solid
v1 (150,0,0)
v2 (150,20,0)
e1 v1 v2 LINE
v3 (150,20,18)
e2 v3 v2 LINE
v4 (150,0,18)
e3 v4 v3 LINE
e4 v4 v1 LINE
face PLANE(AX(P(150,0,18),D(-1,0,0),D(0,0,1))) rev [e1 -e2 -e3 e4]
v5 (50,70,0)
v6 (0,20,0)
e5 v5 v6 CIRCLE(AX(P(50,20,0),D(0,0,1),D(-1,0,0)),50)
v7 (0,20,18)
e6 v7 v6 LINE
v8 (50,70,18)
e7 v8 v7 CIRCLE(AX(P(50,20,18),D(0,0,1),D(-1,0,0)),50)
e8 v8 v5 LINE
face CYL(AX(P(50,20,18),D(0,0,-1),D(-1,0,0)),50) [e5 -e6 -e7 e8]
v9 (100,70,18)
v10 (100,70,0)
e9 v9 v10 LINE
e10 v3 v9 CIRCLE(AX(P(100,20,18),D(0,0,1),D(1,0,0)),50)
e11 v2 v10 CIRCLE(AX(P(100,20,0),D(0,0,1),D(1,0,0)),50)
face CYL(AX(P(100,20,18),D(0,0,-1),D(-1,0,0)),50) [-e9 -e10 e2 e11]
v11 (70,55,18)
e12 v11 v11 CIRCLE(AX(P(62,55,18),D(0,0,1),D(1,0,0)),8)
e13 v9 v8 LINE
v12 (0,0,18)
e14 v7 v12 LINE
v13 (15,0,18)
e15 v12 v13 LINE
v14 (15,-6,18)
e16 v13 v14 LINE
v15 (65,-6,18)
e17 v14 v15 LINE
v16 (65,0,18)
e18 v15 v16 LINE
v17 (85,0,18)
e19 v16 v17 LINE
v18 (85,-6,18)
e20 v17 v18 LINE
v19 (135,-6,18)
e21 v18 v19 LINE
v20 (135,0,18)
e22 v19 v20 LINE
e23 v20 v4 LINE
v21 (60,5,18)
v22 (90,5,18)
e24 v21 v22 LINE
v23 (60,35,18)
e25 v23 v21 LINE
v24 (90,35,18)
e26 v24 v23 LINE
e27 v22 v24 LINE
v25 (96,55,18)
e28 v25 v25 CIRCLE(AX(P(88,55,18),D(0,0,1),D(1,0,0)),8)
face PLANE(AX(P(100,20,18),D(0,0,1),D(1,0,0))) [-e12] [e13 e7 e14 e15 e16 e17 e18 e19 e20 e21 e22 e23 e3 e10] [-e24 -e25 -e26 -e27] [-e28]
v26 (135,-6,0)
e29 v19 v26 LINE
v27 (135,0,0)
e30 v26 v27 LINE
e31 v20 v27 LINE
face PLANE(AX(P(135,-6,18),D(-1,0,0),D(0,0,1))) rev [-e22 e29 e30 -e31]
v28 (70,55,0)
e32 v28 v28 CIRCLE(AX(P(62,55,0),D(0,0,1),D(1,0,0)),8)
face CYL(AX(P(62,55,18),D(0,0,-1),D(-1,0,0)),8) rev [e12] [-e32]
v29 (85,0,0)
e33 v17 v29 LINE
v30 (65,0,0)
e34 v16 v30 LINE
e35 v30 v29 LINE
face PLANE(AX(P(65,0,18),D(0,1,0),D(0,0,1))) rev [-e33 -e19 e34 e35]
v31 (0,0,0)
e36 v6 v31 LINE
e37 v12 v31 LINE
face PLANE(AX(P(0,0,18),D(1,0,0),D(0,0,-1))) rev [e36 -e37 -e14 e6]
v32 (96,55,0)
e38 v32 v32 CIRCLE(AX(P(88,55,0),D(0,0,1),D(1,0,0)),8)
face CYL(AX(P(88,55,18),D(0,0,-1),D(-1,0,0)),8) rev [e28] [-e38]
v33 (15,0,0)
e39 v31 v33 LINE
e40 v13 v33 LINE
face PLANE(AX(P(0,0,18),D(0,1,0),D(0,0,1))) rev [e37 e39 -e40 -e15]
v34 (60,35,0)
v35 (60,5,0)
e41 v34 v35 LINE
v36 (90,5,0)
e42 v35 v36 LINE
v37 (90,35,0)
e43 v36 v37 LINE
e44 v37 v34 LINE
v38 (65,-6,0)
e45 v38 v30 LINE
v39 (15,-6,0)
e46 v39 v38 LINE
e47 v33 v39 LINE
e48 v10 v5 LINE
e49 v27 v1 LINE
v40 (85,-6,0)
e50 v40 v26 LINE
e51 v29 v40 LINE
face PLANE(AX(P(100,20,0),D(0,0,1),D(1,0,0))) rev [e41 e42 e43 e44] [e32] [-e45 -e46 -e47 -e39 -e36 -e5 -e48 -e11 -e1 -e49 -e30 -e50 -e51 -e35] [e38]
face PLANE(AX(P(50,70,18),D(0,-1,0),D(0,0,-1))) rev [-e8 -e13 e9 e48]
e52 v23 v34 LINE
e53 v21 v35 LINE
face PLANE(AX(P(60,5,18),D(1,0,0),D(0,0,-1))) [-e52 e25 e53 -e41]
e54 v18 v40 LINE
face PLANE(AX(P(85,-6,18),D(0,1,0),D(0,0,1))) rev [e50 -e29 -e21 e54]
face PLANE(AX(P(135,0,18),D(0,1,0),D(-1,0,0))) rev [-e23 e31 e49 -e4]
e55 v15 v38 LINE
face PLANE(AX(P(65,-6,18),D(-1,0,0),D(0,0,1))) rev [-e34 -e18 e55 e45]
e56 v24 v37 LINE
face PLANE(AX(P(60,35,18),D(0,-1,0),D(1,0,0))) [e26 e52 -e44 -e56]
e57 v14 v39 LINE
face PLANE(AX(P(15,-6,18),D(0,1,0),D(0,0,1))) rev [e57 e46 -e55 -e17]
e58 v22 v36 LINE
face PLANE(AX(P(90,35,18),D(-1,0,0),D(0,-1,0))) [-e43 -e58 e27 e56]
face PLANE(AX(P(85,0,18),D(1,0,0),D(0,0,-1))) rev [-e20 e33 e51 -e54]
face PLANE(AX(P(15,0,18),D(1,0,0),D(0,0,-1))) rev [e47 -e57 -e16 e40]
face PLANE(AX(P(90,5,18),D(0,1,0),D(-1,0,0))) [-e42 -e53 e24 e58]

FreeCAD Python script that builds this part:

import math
import FreeCAD as App
import Part
import Sketcher

V = App.Vector


def add_polygon(sketch, points):
    """Adds a closed chain of lines whose ends are joined by coincident constraints."""
    first, n = sketch.GeometryCount, len(points)
    for a, b in zip(points, points[1:] + points[:1]):
        sketch.addGeometry(Part.LineSegment(App.Vector(*a, 0), App.Vector(*b, 0)), False)
    for i in range(n):
        sketch.addConstraint(Sketcher.Constraint("Coincident", first + i, 2, first + (i + 1) % n, 1))

doc = App.newDocument("Part")
body = doc.addObject("PartDesign::Body", "Body")

sketch1 = body.newObject("Sketcher::SketchObject", "Sketch")
sketch1.AttachmentSupport = (doc.getObject("XY_Plane"), [""])
sketch1.MapMode = "FlatFace"
sketch1.addGeometry(Part.LineSegment(V(0, 20, 0), V(0, 0, 0)), False)
sketch1.addGeometry(Part.LineSegment(V(0, 0, 0), V(15, 0, 0)), False)
sketch1.addGeometry(Part.LineSegment(V(15, 0, 0), V(15, -6, 0)), False)
sketch1.addGeometry(Part.LineSegment(V(15, -6, 0), V(65, -6, 0)), False)
sketch1.addGeometry(Part.LineSegment(V(65, -6, 0), V(65, 0, 0)), False)
sketch1.addGeometry(Part.LineSegment(V(65, 0, 0), V(85, 0, 0)), False)
sketch1.addGeometry(Part.LineSegment(V(85, 0, 0), V(85, -6, 0)), False)
sketch1.addGeometry(Part.LineSegment(V(85, -6, 0), V(135, -6, 0)), False)
sketch1.addGeometry(Part.LineSegment(V(135, -6, 0), V(135, 0, 0)), False)
sketch1.addGeometry(Part.LineSegment(V(135, 0, 0), V(150, 0, 0)), False)
sketch1.addGeometry(Part.LineSegment(V(150, 0, 0), V(150, 20, 0)), False)
sketch1.addGeometry(Part.ArcOfCircle(Part.Circle(V(100, 20, 0), V(0, 0, 1), 50), math.radians(0), math.radians(90)), False)
sketch1.addGeometry(Part.LineSegment(V(100, 70, 0), V(50, 70, 0)), False)
sketch1.addGeometry(Part.ArcOfCircle(Part.Circle(V(50, 20, 0), V(0, 0, 1), 50), math.radians(90), math.radians(180)), False)
add_polygon(sketch1, [(60, 5), (60, 35), (90, 35), (90, 5)])
sketch1.addGeometry(Part.Circle(V(88, 55, 0), V(0, 0, 1), 8), False)
sketch1.addGeometry(Part.Circle(V(62, 55, 0), V(0, 0, 1), 8), False)
sketch1.addConstraint([
    Sketcher.Constraint("Coincident", 0, 2, 1, 1),
    Sketcher.Constraint("Coincident", 1, 2, 2, 1),
    Sketcher.Constraint("Coincident", 2, 2, 3, 1),
    Sketcher.Constraint("Coincident", 3, 2, 4, 1),
    Sketcher.Constraint("Coincident", 4, 2, 5, 1),
    Sketcher.Constraint("Coincident", 5, 2, 6, 1),
    Sketcher.Constraint("Coincident", 6, 2, 7, 1),
    Sketcher.Constraint("Coincident", 7, 2, 8, 1),
    Sketcher.Constraint("Coincident", 8, 2, 9, 1),
    Sketcher.Constraint("Coincident", 9, 2, 10, 1),
    Sketcher.Constraint("Tangent", 10, 2, 11, 1),
    Sketcher.Constraint("Tangent", 11, 2, 12, 1),
    Sketcher.Constraint("Tangent", 12, 2, 13, 1),
    Sketcher.Constraint("Tangent", 13, 2, 0, 1),
    Sketcher.Constraint("Vertical", 0),
    Sketcher.Constraint("Horizontal", 1),
    Sketcher.Constraint("Vertical", 2),
    Sketcher.Constraint("Horizontal", 3),
    Sketcher.Constraint("Vertical", 4),
    Sketcher.Constraint("Horizontal", 5),
    Sketcher.Constraint("Vertical", 6),
    Sketcher.Constraint("Horizontal", 7),
    Sketcher.Constraint("Vertical", 8),
    Sketcher.Constraint("Horizontal", 9),
    Sketcher.Constraint("Vertical", 10),
    Sketcher.Constraint("Horizontal", 12),
    Sketcher.Constraint("Vertical", 14),
    Sketcher.Constraint("Horizontal", 15),
    Sketcher.Constraint("Vertical", 16),
    Sketcher.Constraint("Horizontal", 17),
    Sketcher.Constraint("Coincident", 0, 2, -1, 1),
    Sketcher.Constraint("Equal", 11, 13),
    Sketcher.Constraint("Equal", 18, 19),
    Sketcher.Constraint("PointOnObject", 4, 2, -1),
    Sketcher.Constraint("PointOnObject", 8, 2, -1),
    Sketcher.Constraint("Horizontal", 18, 3, 19, 3),
    Sketcher.Constraint("Horizontal", 3, 2, 6, 2),
    Sketcher.Constraint("Equal", 3, 7),
    Sketcher.Constraint("Equal", 1, 9),
    Sketcher.Constraint("Equal", 7, 12),
    Sketcher.Constraint("Equal", 5, 0),
    Sketcher.Constraint("Equal", 17, 14),
    Sketcher.Constraint("Diameter", 18, 16.0),
    Sketcher.Constraint("Radius", 11, 50.0),
    Sketcher.Constraint("DistanceX", 1, 1, 1, 2, 15.0),
    Sketcher.Constraint("DistanceX", 3, 1, 3, 2, 50.0),
    Sketcher.Constraint("DistanceX", 15, 1, 15, 2, 30.0),
    Sketcher.Constraint("DistanceY", 2, 2, 2, 1, 6.0),
    Sketcher.Constraint("DistanceX", -1, 1, 18, 3, 88.0),
    Sketcher.Constraint("DistanceY", -1, 1, 18, 3, 55.0),
    Sketcher.Constraint("DistanceX", -1, 1, 19, 3, 62.0),
    Sketcher.Constraint("DistanceX", -1, 1, 14, 2, 60.0),
    Sketcher.Constraint("DistanceY", -1, 1, 14, 2, 35.0),
])
pad1 = body.newObject("PartDesign::Pad", "Pad")
pad1.Profile = sketch1
pad1.Length = 18

doc.recompute()
